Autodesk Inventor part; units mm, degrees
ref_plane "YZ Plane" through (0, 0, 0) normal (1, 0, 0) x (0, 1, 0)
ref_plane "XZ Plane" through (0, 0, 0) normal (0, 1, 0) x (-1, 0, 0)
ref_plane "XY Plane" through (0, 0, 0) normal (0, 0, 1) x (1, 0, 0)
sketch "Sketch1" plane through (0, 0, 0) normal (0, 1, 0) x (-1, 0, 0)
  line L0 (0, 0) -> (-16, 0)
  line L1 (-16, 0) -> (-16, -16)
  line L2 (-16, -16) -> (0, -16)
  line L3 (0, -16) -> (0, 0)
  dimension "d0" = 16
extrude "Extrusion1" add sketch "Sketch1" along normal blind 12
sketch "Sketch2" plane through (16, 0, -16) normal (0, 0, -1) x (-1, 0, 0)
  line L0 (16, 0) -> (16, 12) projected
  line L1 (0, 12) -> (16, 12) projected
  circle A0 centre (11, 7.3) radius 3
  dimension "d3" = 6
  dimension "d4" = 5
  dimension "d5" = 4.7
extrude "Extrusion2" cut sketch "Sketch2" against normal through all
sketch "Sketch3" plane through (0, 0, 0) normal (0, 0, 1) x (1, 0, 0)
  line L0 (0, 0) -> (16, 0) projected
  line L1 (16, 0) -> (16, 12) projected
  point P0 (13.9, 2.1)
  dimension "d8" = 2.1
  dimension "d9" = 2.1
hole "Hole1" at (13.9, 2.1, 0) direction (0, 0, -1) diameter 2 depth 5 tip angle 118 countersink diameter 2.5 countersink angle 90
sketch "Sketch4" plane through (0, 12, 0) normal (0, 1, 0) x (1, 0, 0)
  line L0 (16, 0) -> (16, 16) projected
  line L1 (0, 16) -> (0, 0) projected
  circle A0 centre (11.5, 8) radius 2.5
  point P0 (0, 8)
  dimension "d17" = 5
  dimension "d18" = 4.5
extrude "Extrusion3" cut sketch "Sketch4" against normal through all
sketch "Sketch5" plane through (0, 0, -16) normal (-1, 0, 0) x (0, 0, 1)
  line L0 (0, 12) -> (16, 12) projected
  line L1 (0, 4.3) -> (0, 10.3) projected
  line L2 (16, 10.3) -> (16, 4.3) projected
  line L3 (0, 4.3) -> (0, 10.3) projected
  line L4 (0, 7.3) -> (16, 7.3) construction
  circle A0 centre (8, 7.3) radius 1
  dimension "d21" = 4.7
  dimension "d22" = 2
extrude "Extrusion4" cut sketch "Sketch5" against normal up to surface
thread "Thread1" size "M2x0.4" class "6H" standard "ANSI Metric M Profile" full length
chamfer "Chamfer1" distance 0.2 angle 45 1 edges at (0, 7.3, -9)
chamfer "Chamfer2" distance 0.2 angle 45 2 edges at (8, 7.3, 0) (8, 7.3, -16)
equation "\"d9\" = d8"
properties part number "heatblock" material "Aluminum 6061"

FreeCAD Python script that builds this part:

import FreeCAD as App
import Part
import Sketcher
from FreeCAD import Vector
Q = App.Units.Quantity


def edges_at(feature, points):
    """Names of the edges that pass closest to the given points."""
    edges = feature.Shape.Edges
    near = lambda p: min(range(len(edges)), key=lambda i: edges[i].distToShape(Part.Vertex(*p))[0])
    return sorted({f"Edge{near(p) + 1}" for p in points})

doc = App.newDocument("Part")
body = doc.addObject("PartDesign::Body", "Body")

sketch1 = body.newObject("Sketcher::SketchObject", "Sketch")
sketch1.AttachmentSupport = (doc.getObject("XZ_Plane"), [""])
sketch1.MapMode = "FlatFace"
sketch1.addGeometry(Part.LineSegment(Vector(0, -16, 0), Vector(0, 0, 0)), False)
sketch1.addGeometry(Part.LineSegment(Vector(0, 0, 0), Vector(16, 0, 0)), False)
sketch1.addGeometry(Part.LineSegment(Vector(16, 0, 0), Vector(16, -16, 0)), False)
sketch1.addGeometry(Part.LineSegment(Vector(16, -16, 0), Vector(0, -16, 0)), False)
sketch1.addConstraint(Sketcher.Constraint("Coincident", 0, 2, 1, 1))
sketch1.addConstraint(Sketcher.Constraint("Coincident", 1, 2, 2, 1))
sketch1.addConstraint(Sketcher.Constraint("Coincident", 2, 2, 3, 1))
sketch1.addConstraint(Sketcher.Constraint("Coincident", 3, 2, 0, 1))
sketch1.addConstraint(Sketcher.Constraint("Vertical", 0))
sketch1.addConstraint(Sketcher.Constraint("Horizontal", 1))
sketch1.addConstraint(Sketcher.Constraint("Vertical", 2))
sketch1.addConstraint(Sketcher.Constraint("Horizontal", 3))
sketch1.addConstraint(Sketcher.Constraint("Coincident", 0, 2, -1, 1))
sketch1.addConstraint(Sketcher.Constraint("Equal", 3, 0))
sketch1.addConstraint(Sketcher.Constraint("DistanceX", 1, 1, 1, 2, Q("16 mm")))
pad1 = body.newObject("PartDesign::Pad", "Pad")
pad1.Profile = sketch1
pad1.Length = 12
pad1.Reversed = True

sketch2 = body.newObject("Sketcher::SketchObject", "Sketch001")
sketch2.AttachmentSupport = (doc.getObject("XY_Plane"), [""])
sketch2.MapMode = "FlatFace"
sketch2.AttachmentOffset = App.Placement(Vector(0, 0, -16), App.Rotation())
sketch2.addGeometry(Part.Circle(Vector(5, 7.3, 0), Vector(0, 0, 1), 3), False)
sketch2.addConstraint(Sketcher.Constraint("Diameter", 0, Q("6 mm")))
sketch2.addConstraint(Sketcher.Constraint("DistanceX", -1, 1, 0, 3, Q("5 mm")))
sketch2.addConstraint(Sketcher.Constraint("DistanceY", -1, 1, 0, 3, Q("7.3 mm")))
pocket1 = body.newObject("PartDesign::Pocket", "Pocket")
pocket1.Profile = sketch2
pocket1.Type = "ThroughAll"
pocket1.Reversed = True

sketch3 = body.newObject("Sketcher::SketchObject", "Sketch002")
sketch3.AttachmentSupport = (doc.getObject("XY_Plane"), [""])
sketch3.MapMode = "FlatFace"
sketch3.addGeometry(Part.Circle(Vector(13.9, 2.1, 0), Vector(0, 0, 1), 1), False)
sketch3.addConstraint(Sketcher.Constraint("Diameter", 0, Q("2 mm")))
sketch3.addConstraint(Sketcher.Constraint("DistanceX", -1, 1, 0, 3, Q("13.9 mm")))
sketch3.addConstraint(Sketcher.Constraint("DistanceY", -1, 1, 0, 3, Q("2.1 mm")))
doc.recompute()
hole = body.newObject("PartDesign::Hole", "Hole")
hole.Profile = sketch3
hole.ThreadType = "None"
hole.Diameter = 2
hole.DepthType = "Dimension"
hole.Depth = 5
hole.DrillPoint = "Angled"
hole.DrillPointAngle = 118
hole.HoleCutType = "Countersink"
hole.HoleCutDiameter = 2.5
hole.HoleCutCountersinkAngle = 90

sketch4 = body.newObject("Sketcher::SketchObject", "Sketch003")
sketch4.AttachmentSupport = (doc.getObject("XZ_Plane"), [""])
sketch4.MapMode = "FlatFace"
sketch4.AttachmentOffset = App.Placement(Vector(0, 0, -12), App.Rotation())
sketch4.addGeometry(Part.Circle(Vector(11.5, -8, 0), Vector(0, 0, 1), 2.5), False)
sketch4.addConstraint(Sketcher.Constraint("Diameter", 0, Q("5 mm")))
sketch4.addConstraint(Sketcher.Constraint("DistanceY", 0, 3, -1, 1, Q("8 mm")))
sketch4.addConstraint(Sketcher.Constraint("DistanceX", -1, 1, 0, 3, Q("11.5 mm")))
pocket2 = body.newObject("PartDesign::Pocket", "Pocket001")
pocket2.Profile = sketch4
pocket2.Type = "ThroughAll"
pocket2.Reversed = True

sketch5 = body.newObject("Sketcher::SketchObject", "Sketch004")
sketch5.AttachmentSupport = (doc.getObject("YZ_Plane"), [""])
sketch5.MapMode = "FlatFace"
sketch5.addGeometry(Part.Circle(Vector(7.3, -8, 0), Vector(0, 0, 1), 1), False)
sketch5.addConstraint(Sketcher.Constraint("Diameter", 0, Q("2 mm")))
sketch5.addConstraint(Sketcher.Constraint("DistanceY", 0, 3, -1, 1, Q("8 mm")))
sketch5.addConstraint(Sketcher.Constraint("DistanceX", -1, 1, 0, 3, Q("7.3 mm")))
pocket3 = body.newObject("PartDesign::Pocket", "Pocket002")
pocket3.Profile = sketch5
pocket3.Type = "UpToFirst"
pocket3.Reversed = True
doc.recompute()

chamfer = body.newObject("PartDesign::Chamfer", "Chamfer")
chamfer.Base = (pocket3, edges_at(pocket3, [(0, 7.3, -9)]))
chamfer.Size = 0.2
doc.recompute()

chamfer2 = body.newObject("PartDesign::Chamfer", "Chamfer001")
chamfer2.Base = (chamfer, edges_at(chamfer, [(8, 7.3, 0), (8, 7.3, -16)]))
chamfer2.Size = 0.2

doc.recompute()
